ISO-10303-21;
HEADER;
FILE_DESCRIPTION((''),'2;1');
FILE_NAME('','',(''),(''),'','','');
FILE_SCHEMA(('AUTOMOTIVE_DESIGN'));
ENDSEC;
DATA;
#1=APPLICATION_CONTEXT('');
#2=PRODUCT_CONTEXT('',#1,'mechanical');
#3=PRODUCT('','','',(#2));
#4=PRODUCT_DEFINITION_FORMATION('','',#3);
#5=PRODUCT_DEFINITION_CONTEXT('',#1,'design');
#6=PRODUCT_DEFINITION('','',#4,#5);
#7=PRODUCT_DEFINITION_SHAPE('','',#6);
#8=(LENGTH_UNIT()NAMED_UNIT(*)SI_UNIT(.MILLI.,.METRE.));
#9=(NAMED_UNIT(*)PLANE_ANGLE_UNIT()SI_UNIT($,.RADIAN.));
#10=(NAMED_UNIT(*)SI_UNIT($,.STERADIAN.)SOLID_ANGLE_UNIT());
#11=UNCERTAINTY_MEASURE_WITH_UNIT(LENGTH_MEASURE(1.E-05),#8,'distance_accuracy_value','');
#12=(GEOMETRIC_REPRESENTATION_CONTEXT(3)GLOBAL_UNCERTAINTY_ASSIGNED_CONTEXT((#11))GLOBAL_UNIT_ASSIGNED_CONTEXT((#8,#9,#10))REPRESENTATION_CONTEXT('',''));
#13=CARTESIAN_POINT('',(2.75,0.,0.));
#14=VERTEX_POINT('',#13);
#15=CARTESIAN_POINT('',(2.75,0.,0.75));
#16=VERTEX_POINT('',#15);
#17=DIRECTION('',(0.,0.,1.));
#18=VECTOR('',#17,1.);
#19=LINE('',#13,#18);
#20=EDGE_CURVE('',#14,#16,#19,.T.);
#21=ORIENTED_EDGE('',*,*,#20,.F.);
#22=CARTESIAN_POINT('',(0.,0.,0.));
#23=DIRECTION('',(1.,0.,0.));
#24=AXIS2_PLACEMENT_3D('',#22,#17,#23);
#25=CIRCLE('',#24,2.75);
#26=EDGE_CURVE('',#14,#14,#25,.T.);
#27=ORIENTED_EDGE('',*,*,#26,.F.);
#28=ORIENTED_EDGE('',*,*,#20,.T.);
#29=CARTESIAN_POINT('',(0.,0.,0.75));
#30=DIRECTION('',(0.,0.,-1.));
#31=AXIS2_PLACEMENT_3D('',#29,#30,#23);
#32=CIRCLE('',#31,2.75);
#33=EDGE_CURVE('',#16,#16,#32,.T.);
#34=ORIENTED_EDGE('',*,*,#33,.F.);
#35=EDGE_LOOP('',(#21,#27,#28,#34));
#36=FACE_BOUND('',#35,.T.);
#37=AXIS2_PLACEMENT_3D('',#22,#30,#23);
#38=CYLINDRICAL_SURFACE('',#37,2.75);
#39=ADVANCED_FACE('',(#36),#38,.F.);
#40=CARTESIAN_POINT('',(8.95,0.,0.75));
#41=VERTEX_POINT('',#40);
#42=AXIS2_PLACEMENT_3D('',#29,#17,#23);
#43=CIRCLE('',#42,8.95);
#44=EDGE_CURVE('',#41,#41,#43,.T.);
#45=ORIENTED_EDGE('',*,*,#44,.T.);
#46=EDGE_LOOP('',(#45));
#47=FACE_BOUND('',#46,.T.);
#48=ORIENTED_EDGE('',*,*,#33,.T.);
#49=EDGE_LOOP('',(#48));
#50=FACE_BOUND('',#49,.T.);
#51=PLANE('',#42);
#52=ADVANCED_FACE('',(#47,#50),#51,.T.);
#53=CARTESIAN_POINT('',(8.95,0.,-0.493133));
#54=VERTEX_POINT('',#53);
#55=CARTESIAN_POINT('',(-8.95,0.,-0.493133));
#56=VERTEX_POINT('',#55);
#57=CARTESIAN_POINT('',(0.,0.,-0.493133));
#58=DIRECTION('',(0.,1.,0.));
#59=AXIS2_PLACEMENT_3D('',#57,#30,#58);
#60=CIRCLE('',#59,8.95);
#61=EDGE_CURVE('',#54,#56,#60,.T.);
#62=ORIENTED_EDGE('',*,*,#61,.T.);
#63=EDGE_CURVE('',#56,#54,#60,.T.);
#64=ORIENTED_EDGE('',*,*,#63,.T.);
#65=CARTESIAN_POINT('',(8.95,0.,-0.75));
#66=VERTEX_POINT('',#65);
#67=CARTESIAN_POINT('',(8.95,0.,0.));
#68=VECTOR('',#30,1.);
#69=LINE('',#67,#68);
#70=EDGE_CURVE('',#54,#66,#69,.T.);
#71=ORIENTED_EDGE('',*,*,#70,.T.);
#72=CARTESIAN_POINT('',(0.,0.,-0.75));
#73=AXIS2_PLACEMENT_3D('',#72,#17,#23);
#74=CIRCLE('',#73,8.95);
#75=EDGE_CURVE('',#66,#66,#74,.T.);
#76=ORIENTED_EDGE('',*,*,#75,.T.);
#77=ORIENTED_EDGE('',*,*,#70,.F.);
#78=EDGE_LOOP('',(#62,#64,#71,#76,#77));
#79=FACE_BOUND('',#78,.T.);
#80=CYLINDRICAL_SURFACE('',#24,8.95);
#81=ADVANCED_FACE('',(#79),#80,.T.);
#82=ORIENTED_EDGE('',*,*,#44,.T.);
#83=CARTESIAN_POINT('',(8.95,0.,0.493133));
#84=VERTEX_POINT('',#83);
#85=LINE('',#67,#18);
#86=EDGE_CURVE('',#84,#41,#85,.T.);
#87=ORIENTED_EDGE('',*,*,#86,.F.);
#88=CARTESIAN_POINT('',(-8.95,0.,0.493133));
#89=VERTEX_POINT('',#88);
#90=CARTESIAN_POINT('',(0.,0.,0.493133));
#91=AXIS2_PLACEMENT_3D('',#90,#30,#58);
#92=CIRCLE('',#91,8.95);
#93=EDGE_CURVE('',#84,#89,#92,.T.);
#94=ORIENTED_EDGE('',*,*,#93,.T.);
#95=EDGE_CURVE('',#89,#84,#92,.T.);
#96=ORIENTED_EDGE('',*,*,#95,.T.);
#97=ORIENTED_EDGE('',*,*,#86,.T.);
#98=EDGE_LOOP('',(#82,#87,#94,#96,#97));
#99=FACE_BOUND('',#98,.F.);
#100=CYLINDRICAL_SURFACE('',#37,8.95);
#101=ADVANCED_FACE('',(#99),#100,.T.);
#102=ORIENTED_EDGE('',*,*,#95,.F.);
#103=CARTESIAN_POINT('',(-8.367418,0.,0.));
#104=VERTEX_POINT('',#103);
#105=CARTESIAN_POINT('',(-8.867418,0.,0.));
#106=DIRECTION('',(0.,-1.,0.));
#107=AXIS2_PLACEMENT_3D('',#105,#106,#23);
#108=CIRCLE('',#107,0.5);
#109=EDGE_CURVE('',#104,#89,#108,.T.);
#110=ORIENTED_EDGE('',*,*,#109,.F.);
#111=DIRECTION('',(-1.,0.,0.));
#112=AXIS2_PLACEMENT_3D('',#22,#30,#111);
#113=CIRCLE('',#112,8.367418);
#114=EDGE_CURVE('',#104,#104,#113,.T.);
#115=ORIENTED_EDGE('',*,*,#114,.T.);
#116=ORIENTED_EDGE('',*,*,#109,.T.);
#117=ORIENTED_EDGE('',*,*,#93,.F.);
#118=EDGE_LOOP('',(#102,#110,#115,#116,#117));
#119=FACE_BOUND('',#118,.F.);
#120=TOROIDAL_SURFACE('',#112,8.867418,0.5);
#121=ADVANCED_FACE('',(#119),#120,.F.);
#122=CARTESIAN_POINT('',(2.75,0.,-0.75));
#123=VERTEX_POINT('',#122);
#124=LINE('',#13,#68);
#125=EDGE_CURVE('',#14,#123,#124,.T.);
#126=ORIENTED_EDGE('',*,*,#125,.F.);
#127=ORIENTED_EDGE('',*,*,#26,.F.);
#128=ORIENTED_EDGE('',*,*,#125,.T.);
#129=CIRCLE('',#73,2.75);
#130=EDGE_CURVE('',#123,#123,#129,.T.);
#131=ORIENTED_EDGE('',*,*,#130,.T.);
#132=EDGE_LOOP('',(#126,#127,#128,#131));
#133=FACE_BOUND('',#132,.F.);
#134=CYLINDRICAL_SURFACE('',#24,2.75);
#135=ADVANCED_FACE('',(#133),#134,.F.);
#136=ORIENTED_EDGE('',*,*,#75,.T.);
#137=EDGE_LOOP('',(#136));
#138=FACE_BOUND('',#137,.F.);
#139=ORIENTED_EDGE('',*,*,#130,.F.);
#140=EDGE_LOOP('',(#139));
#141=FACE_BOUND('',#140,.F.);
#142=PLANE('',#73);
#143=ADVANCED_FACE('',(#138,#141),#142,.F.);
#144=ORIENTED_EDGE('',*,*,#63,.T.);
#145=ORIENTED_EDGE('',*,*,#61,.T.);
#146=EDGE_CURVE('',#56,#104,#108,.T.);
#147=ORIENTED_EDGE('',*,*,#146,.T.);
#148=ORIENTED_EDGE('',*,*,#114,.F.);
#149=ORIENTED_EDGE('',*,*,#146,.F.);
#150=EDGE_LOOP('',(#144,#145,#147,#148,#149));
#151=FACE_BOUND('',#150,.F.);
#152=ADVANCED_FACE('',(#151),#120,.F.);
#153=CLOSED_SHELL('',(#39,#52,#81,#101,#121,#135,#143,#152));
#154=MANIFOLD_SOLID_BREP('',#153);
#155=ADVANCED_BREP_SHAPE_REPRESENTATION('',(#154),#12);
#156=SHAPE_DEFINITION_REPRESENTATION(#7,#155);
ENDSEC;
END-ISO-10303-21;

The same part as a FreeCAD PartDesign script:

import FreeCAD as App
import Part
import Sketcher
Q = App.Units.Quantity

doc = App.newDocument("Part")
body = doc.addObject("PartDesign::Body", "Body")

sketch1 = body.newObject("Sketcher::SketchObject", "Sketch")
sketch1.AttachmentSupport = (doc.getObject("XY_Plane"), [""])
sketch1.MapMode = "FlatFace"
sketch1.addGeometry(Part.Circle(App.Vector(0, 0, 0), App.Vector(0, 0, 1), 9), False)
sketch1.addConstraint([
    Sketcher.Constraint("Coincident", 0, 3, -1, 1),
    Sketcher.Constraint("Diameter", 0, Q("17.9 mm")),
])
pad1 = body.newObject("PartDesign::Pad", "Pad")
pad1.Profile = sketch1
pad1.Type = "TwoLengths"
pad1.Length = 0.75
pad1.Length2 = 0.75
pad1.Reversed = True

sketch2 = body.newObject("Sketcher::SketchObject", "Sketch001")
sketch2.AttachmentSupport = (doc.getObject("XZ_Plane"), [""])
sketch2.MapMode = "FlatFace"
sketch2.addGeometry(Part.Circle(App.Vector(-8.9, 0, 0), App.Vector(0, 0, 1), 0.5), False)
sketch2.addConstraint([
    Sketcher.Constraint("PointOnObject", 0, 3, -1),
    Sketcher.Constraint("Diameter", 0, Q("1 mm")),
    Sketcher.Constraint("DistanceX", 0, 3, -1, 1, Q("8.867418 mm")),
])
groove = body.newObject("PartDesign::Groove", "Groove")
groove.Profile = sketch2
groove.ReferenceAxis = (sketch2, ["V_Axis"])
groove.Angle = 360

sketch3 = body.newObject("Sketcher::SketchObject", "Sketch002")
sketch3.AttachmentSupport = (doc.getObject("XY_Plane"), [""])
sketch3.MapMode = "FlatFace"
sketch3.addGeometry(Part.Circle(App.Vector(0, 0, 0), App.Vector(0, 0, 1), 2.8), False)
sketch3.addConstraint([
    Sketcher.Constraint("Coincident", 0, 3, -1, 1),
    Sketcher.Constraint("Diameter", 0, Q("5.5 mm")),
])
pocket1 = body.newObject("PartDesign::Pocket", "Pocket")
pocket1.Profile = sketch3
pocket1.Type = "ThroughAll"
pocket1.Midplane = True

doc.recompute()
